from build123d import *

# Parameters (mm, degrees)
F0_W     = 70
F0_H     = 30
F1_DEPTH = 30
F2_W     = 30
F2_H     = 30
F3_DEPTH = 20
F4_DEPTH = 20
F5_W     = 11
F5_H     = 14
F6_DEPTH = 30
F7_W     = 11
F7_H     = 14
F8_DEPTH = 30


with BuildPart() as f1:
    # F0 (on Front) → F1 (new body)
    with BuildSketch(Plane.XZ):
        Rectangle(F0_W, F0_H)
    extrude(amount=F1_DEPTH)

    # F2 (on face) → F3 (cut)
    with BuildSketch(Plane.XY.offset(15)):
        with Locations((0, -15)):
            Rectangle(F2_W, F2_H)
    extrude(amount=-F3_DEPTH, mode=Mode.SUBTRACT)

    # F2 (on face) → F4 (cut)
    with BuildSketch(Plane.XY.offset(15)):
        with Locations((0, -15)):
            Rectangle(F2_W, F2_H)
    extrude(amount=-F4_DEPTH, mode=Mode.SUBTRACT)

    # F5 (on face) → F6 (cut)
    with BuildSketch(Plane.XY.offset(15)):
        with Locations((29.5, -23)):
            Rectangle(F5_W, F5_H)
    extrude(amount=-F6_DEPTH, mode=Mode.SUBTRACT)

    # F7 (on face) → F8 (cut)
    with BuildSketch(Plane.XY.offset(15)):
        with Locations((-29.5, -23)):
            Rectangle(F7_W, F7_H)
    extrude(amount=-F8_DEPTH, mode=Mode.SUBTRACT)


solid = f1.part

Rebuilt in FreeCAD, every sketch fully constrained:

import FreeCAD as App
import Part
import Sketcher

V = App.Vector
Q = App.Units.Quantity

doc = App.newDocument("Part")
body = doc.addObject("PartDesign::Body", "Body")

sketch1 = body.newObject("Sketcher::SketchObject", "Sketch")
sketch1.AttachmentSupport = (doc.getObject("XZ_Plane"), [""])
sketch1.MapMode = "FlatFace"
sketch1.addGeometry(Part.LineSegment(V(-35, 15, 0), V(-35, -15, 0)), False)
sketch1.addGeometry(Part.LineSegment(V(-35, -15, 0), V(35, -15, 0)), False)
sketch1.addGeometry(Part.LineSegment(V(35, -15, 0), V(35, 15, 0)), False)
sketch1.addGeometry(Part.LineSegment(V(35, 15, 0), V(-35, 15, 0)), False)
sketch1.addConstraint(Sketcher.Constraint("Coincident", 0, 2, 1, 1))
sketch1.addConstraint(Sketcher.Constraint("Coincident", 1, 2, 2, 1))
sketch1.addConstraint(Sketcher.Constraint("Coincident", 2, 2, 3, 1))
sketch1.addConstraint(Sketcher.Constraint("Coincident", 3, 2, 0, 1))
sketch1.addConstraint(Sketcher.Constraint("Vertical", 0))
sketch1.addConstraint(Sketcher.Constraint("Horizontal", 1))
sketch1.addConstraint(Sketcher.Constraint("Vertical", 2))
sketch1.addConstraint(Sketcher.Constraint("Horizontal", 3))
sketch1.addConstraint(Sketcher.Constraint("Symmetric", 0, 2, 2, 2, -1, 1))
sketch1.addConstraint(Sketcher.Constraint("DistanceX", 1, 1, 1, 2, Q("70 mm")))
sketch1.addConstraint(Sketcher.Constraint("DistanceY", 0, 2, 0, 1, Q("30 mm")))
pad1 = body.newObject("PartDesign::Pad", "Pad")
pad1.Profile = sketch1
pad1.Length = 30

sketch2 = body.newObject("Sketcher::SketchObject", "Sketch001")
sketch2.AttachmentSupport = (doc.getObject("XY_Plane"), [""])
sketch2.MapMode = "FlatFace"
sketch2.AttachmentOffset = App.Placement(V(0, 0, 15), App.Rotation())
sketch2.addGeometry(Part.LineSegment(V(-15, 0, 0), V(-15, -30, 0)), False)
sketch2.addGeometry(Part.LineSegment(V(-15, -30, 0), V(15, -30, 0)), False)
sketch2.addGeometry(Part.LineSegment(V(15, -30, 0), V(15, 0, 0)), False)
sketch2.addGeometry(Part.LineSegment(V(15, 0, 0), V(-15, 0, 0)), False)
sketch2.addConstraint(Sketcher.Constraint("Coincident", 0, 2, 1, 1))
sketch2.addConstraint(Sketcher.Constraint("Coincident", 1, 2, 2, 1))
sketch2.addConstraint(Sketcher.Constraint("Coincident", 2, 2, 3, 1))
sketch2.addConstraint(Sketcher.Constraint("Coincident", 3, 2, 0, 1))
sketch2.addConstraint(Sketcher.Constraint("Vertical", 0))
sketch2.addConstraint(Sketcher.Constraint("Horizontal", 1))
sketch2.addConstraint(Sketcher.Constraint("Vertical", 2))
sketch2.addConstraint(Sketcher.Constraint("Horizontal", 3))
sketch2.addConstraint(Sketcher.Constraint("Symmetric", 2, 2, 3, 2, -1, 1))
sketch2.addConstraint(Sketcher.Constraint("Equal", 3, 0))
sketch2.addConstraint(Sketcher.Constraint("DistanceX", 1, 1, 1, 2, Q("30 mm")))
pocket1 = body.newObject("PartDesign::Pocket", "Pocket")
pocket1.Profile = sketch2
pocket1.Length = 20

sketch3 = body.newObject("Sketcher::SketchObject", "Sketch002")
sketch3.AttachmentSupport = (doc.getObject("XY_Plane"), [""])
sketch3.MapMode = "FlatFace"
sketch3.AttachmentOffset = App.Placement(V(0, 0, 15), App.Rotation())
sketch3.addGeometry(Part.LineSegment(V(-15, 0, 0), V(-15, -30, 0)), False)
sketch3.addGeometry(Part.LineSegment(V(-15, -30, 0), V(15, -30, 0)), False)
sketch3.addGeometry(Part.LineSegment(V(15, -30, 0), V(15, 0, 0)), False)
sketch3.addGeometry(Part.LineSegment(V(15, 0, 0), V(-15, 0, 0)), False)
sketch3.addConstraint(Sketcher.Constraint("Coincident", 0, 2, 1, 1))
sketch3.addConstraint(Sketcher.Constraint("Coincident", 1, 2, 2, 1))
sketch3.addConstraint(Sketcher.Constraint("Coincident", 2, 2, 3, 1))
sketch3.addConstraint(Sketcher.Constraint("Coincident", 3, 2, 0, 1))
sketch3.addConstraint(Sketcher.Constraint("Vertical", 0))
sketch3.addConstraint(Sketcher.Constraint("Horizontal", 1))
sketch3.addConstraint(Sketcher.Constraint("Vertical", 2))
sketch3.addConstraint(Sketcher.Constraint("Horizontal", 3))
sketch3.addConstraint(Sketcher.Constraint("Symmetric", 2, 2, 3, 2, -1, 1))
sketch3.addConstraint(Sketcher.Constraint("Equal", 3, 0))
sketch3.addConstraint(Sketcher.Constraint("DistanceX", 1, 1, 1, 2, Q("30 mm")))
pocket2 = body.newObject("PartDesign::Pocket", "Pocket001")
pocket2.Profile = sketch3
pocket2.Length = 20

sketch4 = body.newObject("Sketcher::SketchObject", "Sketch003")
sketch4.AttachmentSupport = (doc.getObject("XY_Plane"), [""])
sketch4.MapMode = "FlatFace"
sketch4.AttachmentOffset = App.Placement(V(0, 0, 15), App.Rotation())
sketch4.addGeometry(Part.LineSegment(V(24, -16, 0), V(24, -30, 0)), False)
sketch4.addGeometry(Part.LineSegment(V(24, -30, 0), V(35, -30, 0)), False)
sketch4.addGeometry(Part.LineSegment(V(35, -30, 0), V(35, -16, 0)), False)
sketch4.addGeometry(Part.LineSegment(V(35, -16, 0), V(24, -16, 0)), False)
sketch4.addConstraint(Sketcher.Constraint("Coincident", 0, 2, 1, 1))
sketch4.addConstraint(Sketcher.Constraint("Coincident", 1, 2, 2, 1))
sketch4.addConstraint(Sketcher.Constraint("Coincident", 2, 2, 3, 1))
sketch4.addConstraint(Sketcher.Constraint("Coincident", 3, 2, 0, 1))
sketch4.addConstraint(Sketcher.Constraint("Vertical", 0))
sketch4.addConstraint(Sketcher.Constraint("Horizontal", 1))
sketch4.addConstraint(Sketcher.Constraint("Vertical", 2))
sketch4.addConstraint(Sketcher.Constraint("Horizontal", 3))
sketch4.addConstraint(Sketcher.Constraint("DistanceX", 1, 1, 1, 2, Q("11 mm")))
sketch4.addConstraint(Sketcher.Constraint("DistanceY", 0, 2, 0, 1, Q("14 mm")))
sketch4.addConstraint(Sketcher.Constraint("DistanceX", -1, 1, 0, 2, Q("24 mm")))
sketch4.addConstraint(Sketcher.Constraint("DistanceY", 0, 2, -1, 1, Q("30 mm")))
pocket3 = body.newObject("PartDesign::Pocket", "Pocket002")
pocket3.Profile = sketch4
pocket3.Length = 30

sketch5 = body.newObject("Sketcher::SketchObject", "Sketch004")
sketch5.AttachmentSupport = (doc.getObject("XY_Plane"), [""])
sketch5.MapMode = "FlatFace"
sketch5.AttachmentOffset = App.Placement(V(0, 0, 15), App.Rotation())
sketch5.addGeometry(Part.LineSegment(V(-35, -16, 0), V(-35, -30, 0)), False)
sketch5.addGeometry(Part.LineSegment(V(-35, -30, 0), V(-24, -30, 0)), False)
sketch5.addGeometry(Part.LineSegment(V(-24, -30, 0), V(-24, -16, 0)), False)
sketch5.addGeometry(Part.LineSegment(V(-24, -16, 0), V(-35, -16, 0)), False)
sketch5.addConstraint(Sketcher.Constraint("Coincident", 0, 2, 1, 1))
sketch5.addConstraint(Sketcher.Constraint("Coincident", 1, 2, 2, 1))
sketch5.addConstraint(Sketcher.Constraint("Coincident", 2, 2, 3, 1))
sketch5.addConstraint(Sketcher.Constraint("Coincident", 3, 2, 0, 1))
sketch5.addConstraint(Sketcher.Constraint("Vertical", 0))
sketch5.addConstraint(Sketcher.Constraint("Horizontal", 1))
sketch5.addConstraint(Sketcher.Constraint("Vertical", 2))
sketch5.addConstraint(Sketcher.Constraint("Horizontal", 3))
sketch5.addConstraint(Sketcher.Constraint("DistanceX", 1, 1, 1, 2, Q("11 mm")))
sketch5.addConstraint(Sketcher.Constraint("DistanceY", 0, 2, 0, 1, Q("14 mm")))
sketch5.addConstraint(Sketcher.Constraint("DistanceX", 0, 2, -1, 1, Q("35 mm")))
sketch5.addConstraint(Sketcher.Constraint("DistanceY", 0, 2, -1, 1, Q("30 mm")))
pocket4 = body.newObject("PartDesign::Pocket", "Pocket003")
pocket4.Profile = sketch5
pocket4.Length = 30

doc.recompute()
